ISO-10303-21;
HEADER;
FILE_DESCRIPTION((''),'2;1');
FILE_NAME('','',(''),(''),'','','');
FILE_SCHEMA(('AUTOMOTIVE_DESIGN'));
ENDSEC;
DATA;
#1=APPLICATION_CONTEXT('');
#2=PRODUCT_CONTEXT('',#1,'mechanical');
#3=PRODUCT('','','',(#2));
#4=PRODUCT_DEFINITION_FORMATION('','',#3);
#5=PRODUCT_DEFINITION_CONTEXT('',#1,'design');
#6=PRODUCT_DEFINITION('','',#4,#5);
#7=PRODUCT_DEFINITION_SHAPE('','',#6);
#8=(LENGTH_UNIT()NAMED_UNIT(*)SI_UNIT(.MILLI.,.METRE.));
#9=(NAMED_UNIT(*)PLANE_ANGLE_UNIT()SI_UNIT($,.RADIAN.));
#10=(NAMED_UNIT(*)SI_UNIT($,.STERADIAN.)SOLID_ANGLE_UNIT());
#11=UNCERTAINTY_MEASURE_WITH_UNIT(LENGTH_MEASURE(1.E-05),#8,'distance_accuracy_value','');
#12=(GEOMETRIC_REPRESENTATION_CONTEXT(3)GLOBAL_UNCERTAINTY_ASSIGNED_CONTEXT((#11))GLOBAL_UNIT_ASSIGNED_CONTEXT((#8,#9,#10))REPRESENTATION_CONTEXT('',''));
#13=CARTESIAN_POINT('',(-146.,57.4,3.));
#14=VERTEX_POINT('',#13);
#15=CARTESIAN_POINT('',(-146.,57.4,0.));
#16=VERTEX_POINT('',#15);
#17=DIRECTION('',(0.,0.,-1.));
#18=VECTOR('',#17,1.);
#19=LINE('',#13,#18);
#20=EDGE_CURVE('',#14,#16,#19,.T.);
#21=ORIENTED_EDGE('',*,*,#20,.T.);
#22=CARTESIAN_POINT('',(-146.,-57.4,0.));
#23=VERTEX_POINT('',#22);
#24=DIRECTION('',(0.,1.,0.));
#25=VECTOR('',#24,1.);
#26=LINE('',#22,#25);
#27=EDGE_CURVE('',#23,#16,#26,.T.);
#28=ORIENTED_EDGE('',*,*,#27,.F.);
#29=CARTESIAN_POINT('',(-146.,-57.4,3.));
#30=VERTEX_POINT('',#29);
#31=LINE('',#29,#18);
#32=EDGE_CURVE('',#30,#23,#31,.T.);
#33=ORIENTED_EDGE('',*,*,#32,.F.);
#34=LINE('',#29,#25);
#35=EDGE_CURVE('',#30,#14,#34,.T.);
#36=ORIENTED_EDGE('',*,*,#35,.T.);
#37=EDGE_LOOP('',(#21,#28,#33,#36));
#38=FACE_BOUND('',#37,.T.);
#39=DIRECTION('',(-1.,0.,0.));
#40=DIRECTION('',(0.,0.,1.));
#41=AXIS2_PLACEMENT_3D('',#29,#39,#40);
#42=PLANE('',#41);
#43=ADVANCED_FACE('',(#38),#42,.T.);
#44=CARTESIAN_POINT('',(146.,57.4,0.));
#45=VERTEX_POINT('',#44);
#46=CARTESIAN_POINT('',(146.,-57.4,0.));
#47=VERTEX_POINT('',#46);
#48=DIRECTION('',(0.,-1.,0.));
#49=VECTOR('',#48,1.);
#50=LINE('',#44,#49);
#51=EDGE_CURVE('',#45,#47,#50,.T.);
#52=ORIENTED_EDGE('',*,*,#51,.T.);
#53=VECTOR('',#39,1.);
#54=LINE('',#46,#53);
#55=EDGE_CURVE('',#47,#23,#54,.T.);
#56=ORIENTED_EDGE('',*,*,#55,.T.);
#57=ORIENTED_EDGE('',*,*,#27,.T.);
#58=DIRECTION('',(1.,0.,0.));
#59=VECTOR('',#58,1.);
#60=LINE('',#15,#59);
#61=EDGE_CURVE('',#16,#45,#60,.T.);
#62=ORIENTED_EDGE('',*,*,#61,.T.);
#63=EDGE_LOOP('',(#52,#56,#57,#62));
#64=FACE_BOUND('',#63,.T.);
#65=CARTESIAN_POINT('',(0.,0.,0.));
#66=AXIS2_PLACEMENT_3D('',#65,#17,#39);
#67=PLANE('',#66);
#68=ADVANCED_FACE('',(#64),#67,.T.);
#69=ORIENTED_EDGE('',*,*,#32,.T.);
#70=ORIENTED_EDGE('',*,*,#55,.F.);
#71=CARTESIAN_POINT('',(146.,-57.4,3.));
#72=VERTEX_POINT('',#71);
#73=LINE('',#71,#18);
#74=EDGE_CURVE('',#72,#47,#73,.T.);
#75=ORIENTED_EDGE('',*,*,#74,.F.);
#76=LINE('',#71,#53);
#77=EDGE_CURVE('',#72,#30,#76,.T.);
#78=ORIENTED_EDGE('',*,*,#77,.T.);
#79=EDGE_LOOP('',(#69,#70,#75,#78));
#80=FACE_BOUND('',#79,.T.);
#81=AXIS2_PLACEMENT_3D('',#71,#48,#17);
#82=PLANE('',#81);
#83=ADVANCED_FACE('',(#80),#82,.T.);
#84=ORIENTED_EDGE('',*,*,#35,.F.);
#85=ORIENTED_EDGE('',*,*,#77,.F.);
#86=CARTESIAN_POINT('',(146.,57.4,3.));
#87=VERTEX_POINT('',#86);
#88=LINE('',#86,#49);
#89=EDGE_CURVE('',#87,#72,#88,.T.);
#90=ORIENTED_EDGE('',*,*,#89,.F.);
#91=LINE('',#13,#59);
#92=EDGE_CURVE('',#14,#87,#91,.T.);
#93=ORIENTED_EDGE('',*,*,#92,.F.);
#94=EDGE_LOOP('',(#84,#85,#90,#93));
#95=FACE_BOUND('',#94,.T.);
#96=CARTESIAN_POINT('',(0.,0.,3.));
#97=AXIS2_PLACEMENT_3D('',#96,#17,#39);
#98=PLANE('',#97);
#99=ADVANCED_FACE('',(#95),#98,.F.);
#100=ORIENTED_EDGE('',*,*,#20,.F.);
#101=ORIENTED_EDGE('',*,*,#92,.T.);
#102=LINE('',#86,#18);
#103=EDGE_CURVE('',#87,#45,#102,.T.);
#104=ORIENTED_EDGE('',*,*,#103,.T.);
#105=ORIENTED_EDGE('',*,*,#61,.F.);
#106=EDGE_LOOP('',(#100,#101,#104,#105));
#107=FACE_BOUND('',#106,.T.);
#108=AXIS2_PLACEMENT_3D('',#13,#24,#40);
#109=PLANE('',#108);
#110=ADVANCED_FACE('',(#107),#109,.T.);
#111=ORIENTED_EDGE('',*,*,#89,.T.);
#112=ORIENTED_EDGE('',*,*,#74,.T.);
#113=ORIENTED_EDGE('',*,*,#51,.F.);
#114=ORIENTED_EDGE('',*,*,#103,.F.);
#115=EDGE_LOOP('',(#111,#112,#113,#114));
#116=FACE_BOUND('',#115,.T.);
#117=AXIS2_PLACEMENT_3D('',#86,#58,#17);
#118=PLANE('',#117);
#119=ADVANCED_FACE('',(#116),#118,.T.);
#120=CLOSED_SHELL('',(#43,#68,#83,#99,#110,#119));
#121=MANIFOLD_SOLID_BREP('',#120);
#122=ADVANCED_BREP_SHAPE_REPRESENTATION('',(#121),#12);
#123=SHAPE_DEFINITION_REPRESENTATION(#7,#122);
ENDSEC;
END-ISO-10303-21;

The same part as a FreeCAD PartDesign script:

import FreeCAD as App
import Part
import Sketcher
from FreeCAD import Vector
Q = App.Units.Quantity


def add_polygon(sketch, points):
    """Adds a closed chain of lines whose ends are joined by coincident constraints."""
    first, n = sketch.GeometryCount, len(points)
    for a, b in zip(points, points[1:] + points[:1]):
        sketch.addGeometry(Part.LineSegment(App.Vector(*a, 0), App.Vector(*b, 0)), False)
    for i in range(n):
        sketch.addConstraint(Sketcher.Constraint("Coincident", first + i, 2, first + (i + 1) % n, 1))

doc = App.newDocument("Part")
params = doc.addObject("Spreadsheet::Sheet", "Params")
for row, (alias, value) in enumerate([
    ("sketch1_width", "292 mm"),
    ("sketch1_height", "114.8 mm"),
    ("pad1_length", "3 mm"),
], start=1):
    params.set(f"A{row}", alias)
    params.set(f"B{row}", "=" + value)
    params.setAlias(f"B{row}", alias)

body = doc.addObject("PartDesign::Body", "Body")

sketch1 = doc.addObject("Sketcher::SketchObject", "Sketch")
body.addObject(sketch1)
sketch1.AttachmentSupport = (doc.XY_Plane, [""])
sketch1.MapMode = "FlatFace"
add_polygon(sketch1, [(146, 57), (146, -57), (-146, -57), (-146, 57)])
sketch1.addConstraint([
    Sketcher.Constraint("Vertical", 0),
    Sketcher.Constraint("Horizontal", 1),
    Sketcher.Constraint("Vertical", 2),
    Sketcher.Constraint("Horizontal", 3),
    Sketcher.Constraint("Symmetric", 0, 2, 2, 2, -1, 1),
    Sketcher.Constraint("DistanceX", 1, 2, 1, 1, Q("292 mm")),
    Sketcher.Constraint("DistanceY", 0, 2, 0, 1, Q("114.8 mm")),
])
sketch1.setExpression("Constraints[9]", "Params.sketch1_width")
sketch1.setExpression("Constraints[10]", "Params.sketch1_height")
pad1 = doc.addObject("PartDesign::Pad", "Pad")
body.addObject(pad1)
pad1.Profile = sketch1
pad1.setExpression("Length", "Params.pad1_length")

doc.recompute()
